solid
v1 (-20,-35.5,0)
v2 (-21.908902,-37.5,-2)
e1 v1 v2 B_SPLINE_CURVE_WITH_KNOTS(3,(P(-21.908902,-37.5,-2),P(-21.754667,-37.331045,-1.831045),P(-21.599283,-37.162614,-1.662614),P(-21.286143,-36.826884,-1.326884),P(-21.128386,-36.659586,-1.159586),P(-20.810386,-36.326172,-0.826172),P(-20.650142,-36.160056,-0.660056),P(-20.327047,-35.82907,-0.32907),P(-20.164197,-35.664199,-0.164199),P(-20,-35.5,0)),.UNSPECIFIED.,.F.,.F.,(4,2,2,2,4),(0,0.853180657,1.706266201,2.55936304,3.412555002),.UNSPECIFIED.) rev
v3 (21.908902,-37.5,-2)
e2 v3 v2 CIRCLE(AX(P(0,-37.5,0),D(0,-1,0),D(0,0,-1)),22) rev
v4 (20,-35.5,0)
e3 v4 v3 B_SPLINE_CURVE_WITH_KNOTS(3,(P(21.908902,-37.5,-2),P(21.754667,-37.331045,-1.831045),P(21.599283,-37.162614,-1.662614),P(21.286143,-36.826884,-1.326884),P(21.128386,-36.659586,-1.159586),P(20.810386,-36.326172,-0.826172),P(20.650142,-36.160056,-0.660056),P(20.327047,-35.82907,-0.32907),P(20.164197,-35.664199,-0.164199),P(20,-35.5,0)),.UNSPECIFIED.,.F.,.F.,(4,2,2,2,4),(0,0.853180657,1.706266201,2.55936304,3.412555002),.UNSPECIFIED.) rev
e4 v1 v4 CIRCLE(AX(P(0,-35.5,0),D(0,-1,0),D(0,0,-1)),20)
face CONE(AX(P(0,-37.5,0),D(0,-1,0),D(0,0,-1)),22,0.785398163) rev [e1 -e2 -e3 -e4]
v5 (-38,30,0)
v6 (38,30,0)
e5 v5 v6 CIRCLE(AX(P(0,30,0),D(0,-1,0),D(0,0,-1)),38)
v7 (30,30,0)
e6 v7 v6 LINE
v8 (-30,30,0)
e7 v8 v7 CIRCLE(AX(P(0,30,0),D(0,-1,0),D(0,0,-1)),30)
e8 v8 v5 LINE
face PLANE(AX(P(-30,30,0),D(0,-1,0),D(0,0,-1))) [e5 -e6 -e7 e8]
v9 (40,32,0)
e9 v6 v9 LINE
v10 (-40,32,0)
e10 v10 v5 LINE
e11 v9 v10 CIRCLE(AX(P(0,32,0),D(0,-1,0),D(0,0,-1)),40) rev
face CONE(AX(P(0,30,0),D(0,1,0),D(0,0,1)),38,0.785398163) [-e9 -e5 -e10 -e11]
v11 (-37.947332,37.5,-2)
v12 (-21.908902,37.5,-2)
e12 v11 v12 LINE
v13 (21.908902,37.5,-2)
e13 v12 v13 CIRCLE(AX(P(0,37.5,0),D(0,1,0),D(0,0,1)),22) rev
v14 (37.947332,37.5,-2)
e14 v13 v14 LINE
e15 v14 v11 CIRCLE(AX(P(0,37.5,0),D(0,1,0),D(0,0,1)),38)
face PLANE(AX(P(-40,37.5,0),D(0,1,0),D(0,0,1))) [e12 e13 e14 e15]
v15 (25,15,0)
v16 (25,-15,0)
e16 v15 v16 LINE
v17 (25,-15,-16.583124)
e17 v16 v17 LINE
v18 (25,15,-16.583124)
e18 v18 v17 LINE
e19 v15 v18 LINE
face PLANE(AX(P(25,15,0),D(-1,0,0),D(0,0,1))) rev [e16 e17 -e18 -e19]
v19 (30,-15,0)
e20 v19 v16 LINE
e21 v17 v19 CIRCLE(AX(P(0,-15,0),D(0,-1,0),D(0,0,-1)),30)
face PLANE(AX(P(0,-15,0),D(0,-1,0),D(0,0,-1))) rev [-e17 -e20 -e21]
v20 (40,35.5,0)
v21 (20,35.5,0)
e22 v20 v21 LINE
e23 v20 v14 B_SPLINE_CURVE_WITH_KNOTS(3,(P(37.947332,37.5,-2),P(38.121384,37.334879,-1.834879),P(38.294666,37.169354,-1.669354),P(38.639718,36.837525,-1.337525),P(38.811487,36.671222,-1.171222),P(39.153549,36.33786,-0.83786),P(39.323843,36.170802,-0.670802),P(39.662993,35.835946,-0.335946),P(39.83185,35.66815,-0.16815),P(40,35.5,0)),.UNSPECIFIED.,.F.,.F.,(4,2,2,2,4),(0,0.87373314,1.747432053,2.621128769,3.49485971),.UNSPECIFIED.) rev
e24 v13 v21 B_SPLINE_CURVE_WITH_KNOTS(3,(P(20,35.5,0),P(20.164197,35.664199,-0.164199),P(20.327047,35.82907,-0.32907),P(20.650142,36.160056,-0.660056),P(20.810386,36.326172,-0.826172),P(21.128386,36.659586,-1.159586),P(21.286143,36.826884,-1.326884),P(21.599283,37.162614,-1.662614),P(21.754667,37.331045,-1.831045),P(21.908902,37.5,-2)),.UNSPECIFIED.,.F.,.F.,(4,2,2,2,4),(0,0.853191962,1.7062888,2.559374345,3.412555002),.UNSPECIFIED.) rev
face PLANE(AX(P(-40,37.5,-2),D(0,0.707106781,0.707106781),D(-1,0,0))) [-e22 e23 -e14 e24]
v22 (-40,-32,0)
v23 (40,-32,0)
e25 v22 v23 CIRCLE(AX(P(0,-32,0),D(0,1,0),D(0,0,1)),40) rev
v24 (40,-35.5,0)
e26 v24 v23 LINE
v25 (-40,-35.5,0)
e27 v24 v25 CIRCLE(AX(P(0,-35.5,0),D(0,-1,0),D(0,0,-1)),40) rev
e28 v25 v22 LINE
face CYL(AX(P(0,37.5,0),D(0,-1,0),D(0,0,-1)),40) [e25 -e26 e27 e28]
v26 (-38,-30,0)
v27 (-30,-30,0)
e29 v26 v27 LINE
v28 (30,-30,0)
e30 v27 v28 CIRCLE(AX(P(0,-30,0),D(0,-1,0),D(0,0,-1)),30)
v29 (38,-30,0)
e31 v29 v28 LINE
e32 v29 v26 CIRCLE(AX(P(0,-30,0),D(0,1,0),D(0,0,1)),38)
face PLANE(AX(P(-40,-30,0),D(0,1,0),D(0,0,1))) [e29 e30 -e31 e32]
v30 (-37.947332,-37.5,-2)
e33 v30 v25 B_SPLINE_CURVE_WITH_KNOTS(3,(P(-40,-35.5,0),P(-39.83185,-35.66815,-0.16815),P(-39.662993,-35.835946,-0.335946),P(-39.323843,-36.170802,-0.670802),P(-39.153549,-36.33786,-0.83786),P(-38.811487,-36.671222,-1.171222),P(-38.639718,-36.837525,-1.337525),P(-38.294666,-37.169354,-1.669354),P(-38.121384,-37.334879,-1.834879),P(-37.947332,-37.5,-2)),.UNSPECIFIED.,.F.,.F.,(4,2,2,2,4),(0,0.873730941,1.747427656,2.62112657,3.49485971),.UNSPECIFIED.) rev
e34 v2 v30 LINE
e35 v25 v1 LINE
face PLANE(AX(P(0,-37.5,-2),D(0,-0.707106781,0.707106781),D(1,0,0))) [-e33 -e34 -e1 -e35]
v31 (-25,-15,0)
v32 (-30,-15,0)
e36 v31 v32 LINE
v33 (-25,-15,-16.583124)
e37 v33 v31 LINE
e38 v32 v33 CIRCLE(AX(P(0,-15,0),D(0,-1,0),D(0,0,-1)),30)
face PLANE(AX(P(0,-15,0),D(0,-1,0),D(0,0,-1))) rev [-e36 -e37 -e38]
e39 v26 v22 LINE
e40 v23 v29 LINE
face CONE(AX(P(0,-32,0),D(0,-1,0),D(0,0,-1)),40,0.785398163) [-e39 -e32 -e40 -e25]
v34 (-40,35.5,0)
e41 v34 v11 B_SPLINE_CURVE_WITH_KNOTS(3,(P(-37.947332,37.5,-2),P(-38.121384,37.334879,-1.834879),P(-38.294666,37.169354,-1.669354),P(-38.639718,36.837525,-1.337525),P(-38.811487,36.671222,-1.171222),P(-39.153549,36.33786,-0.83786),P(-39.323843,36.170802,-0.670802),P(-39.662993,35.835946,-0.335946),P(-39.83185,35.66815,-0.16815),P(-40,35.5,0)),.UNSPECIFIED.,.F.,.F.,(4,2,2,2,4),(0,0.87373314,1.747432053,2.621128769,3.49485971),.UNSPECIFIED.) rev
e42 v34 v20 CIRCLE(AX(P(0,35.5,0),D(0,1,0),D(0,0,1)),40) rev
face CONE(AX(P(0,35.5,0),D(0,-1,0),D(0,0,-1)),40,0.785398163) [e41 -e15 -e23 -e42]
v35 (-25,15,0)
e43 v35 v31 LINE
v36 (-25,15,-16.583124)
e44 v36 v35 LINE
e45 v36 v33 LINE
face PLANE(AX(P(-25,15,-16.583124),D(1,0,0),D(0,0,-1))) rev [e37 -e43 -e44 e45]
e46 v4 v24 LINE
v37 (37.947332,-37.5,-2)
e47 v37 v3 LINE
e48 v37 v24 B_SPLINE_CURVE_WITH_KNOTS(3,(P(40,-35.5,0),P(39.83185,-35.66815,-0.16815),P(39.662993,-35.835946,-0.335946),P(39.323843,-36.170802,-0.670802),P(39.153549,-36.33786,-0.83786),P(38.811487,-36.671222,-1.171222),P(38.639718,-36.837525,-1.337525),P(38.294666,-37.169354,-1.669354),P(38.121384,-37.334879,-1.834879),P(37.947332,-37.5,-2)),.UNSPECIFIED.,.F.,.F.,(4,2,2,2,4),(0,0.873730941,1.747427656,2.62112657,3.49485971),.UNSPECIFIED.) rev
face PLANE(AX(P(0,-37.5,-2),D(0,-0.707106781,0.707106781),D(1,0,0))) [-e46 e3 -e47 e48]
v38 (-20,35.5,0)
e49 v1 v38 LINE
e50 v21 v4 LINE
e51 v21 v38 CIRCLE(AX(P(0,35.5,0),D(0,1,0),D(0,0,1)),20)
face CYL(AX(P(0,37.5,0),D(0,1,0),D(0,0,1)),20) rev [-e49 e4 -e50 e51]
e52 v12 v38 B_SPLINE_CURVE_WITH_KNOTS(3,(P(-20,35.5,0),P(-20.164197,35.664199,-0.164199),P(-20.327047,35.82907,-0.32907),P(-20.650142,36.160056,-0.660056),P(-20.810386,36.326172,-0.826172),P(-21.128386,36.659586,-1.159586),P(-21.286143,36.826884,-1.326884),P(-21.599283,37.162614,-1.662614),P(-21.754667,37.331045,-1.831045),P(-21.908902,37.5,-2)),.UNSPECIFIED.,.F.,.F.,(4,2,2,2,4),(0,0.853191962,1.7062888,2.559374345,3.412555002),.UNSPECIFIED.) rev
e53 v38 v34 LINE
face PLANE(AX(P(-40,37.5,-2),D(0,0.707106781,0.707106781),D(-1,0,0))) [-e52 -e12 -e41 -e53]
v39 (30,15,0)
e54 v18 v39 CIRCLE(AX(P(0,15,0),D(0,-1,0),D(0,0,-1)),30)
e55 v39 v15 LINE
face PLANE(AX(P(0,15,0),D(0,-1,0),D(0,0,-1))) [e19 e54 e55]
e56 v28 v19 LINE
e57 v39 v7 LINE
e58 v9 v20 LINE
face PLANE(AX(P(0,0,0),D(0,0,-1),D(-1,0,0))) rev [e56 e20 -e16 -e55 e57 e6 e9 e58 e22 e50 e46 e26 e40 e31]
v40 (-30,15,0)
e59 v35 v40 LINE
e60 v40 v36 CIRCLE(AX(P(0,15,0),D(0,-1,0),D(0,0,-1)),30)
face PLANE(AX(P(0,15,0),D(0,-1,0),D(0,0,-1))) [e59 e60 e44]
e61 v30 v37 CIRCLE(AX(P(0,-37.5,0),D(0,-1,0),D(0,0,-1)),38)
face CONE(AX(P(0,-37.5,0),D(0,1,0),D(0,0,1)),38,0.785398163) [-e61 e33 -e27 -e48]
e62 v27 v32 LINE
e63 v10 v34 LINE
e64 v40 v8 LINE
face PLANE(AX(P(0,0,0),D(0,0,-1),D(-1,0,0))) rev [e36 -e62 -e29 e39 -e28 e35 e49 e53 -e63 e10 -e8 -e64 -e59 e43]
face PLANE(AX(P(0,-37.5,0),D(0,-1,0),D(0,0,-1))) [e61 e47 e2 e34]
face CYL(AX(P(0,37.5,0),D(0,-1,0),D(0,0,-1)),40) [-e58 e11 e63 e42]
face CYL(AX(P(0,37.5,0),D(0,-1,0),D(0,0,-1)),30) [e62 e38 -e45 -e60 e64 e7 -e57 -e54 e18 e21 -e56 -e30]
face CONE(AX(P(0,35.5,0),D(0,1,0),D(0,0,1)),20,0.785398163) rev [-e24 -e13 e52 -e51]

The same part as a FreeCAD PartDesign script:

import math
import FreeCAD as App
import Part
import Sketcher

V = App.Vector
Q = App.Units.Quantity


def edges_at(feature, points):
    """Names of the edges that pass closest to the given points."""
    edges = feature.Shape.Edges
    near = lambda p: min(range(len(edges)), key=lambda i: edges[i].distToShape(Part.Vertex(*p))[0])
    return sorted({f"Edge{near(p) + 1}" for p in points})


def add_polygon(sketch, points):
    """Adds a closed chain of lines whose ends are joined by coincident constraints."""
    first, n = sketch.GeometryCount, len(points)
    for a, b in zip(points, points[1:] + points[:1]):
        sketch.addGeometry(Part.LineSegment(App.Vector(*a, 0), App.Vector(*b, 0)), False)
    for i in range(n):
        sketch.addConstraint(Sketcher.Constraint("Coincident", first + i, 2, first + (i + 1) % n, 1))

doc = App.newDocument("Part")
body = doc.addObject("PartDesign::Body", "Body")

sketch1 = doc.addObject("Sketcher::SketchObject", "Sketch")
body.addObject(sketch1)
sketch1.AttachmentSupport = (doc.XY_Plane, [""])
sketch1.MapMode = "FlatFace"
add_polygon(sketch1, [(0, 38), (0, -38), (40, -38), (40, -30), (30, -30), (30, 30), (40, 30), (40, 38)])
sketch1.addConstraint([
    Sketcher.Constraint("Vertical", 0),
    Sketcher.Constraint("Horizontal", 1),
    Sketcher.Constraint("Vertical", 2),
    Sketcher.Constraint("Horizontal", 3),
    Sketcher.Constraint("Vertical", 4),
    Sketcher.Constraint("Horizontal", 5),
    Sketcher.Constraint("Vertical", 6),
    Sketcher.Constraint("Horizontal", 7),
    Sketcher.Constraint("Symmetric", 0, 2, 7, 2, -1, 1),
    Sketcher.Constraint("Symmetric", 2, 2, 5, 2, -1),
    Sketcher.Constraint("DistanceX", 1, 1, 1, 2, Q("40 mm")),
    Sketcher.Constraint("DistanceX", 3, 2, 3, 1, Q("10 mm")),
    Sketcher.Constraint("DistanceY", 0, 2, 0, 1, Q("75 mm")),
    Sketcher.Constraint("DistanceY", 4, 1, 4, 2, Q("60 mm")),
])
revolution = doc.addObject("PartDesign::Revolution", "Revolution")
body.addObject(revolution)
revolution.Profile = sketch1
revolution.ReferenceAxis = (sketch1, ["V_Axis"])
revolution.Angle = 180

sketch2 = doc.addObject("Sketcher::SketchObject", "Sketch001")
body.addObject(sketch2)
sketch2.AttachmentSupport = (doc.XZ_Plane, [""])
sketch2.MapMode = "FlatFace"
sketch2.AttachmentOffset = App.Placement(V(0, 0, -15), App.Rotation())
sketch2.addGeometry([
    Part.LineSegment(V(25, 0, 0), V(25, -17, 0)),
    Part.ArcOfCircle(Part.Circle(V(0, 0, 0), V(0, 0, 1), 30), math.radians(-34), math.radians(0)),
    Part.LineSegment(V(30, 0, 0), V(25, 0, 0)),
], False)
sketch2.addConstraint([
    Sketcher.Constraint("Coincident", 0, 2, 1, 1),
    Sketcher.Constraint("Coincident", 1, 2, 2, 1),
    Sketcher.Constraint("Coincident", 2, 2, 0, 1),
    Sketcher.Constraint("Vertical", 0),
    Sketcher.Constraint("Horizontal", 2),
    Sketcher.Constraint("Coincident", 1, 3, -1, 1),
    Sketcher.Constraint("PointOnObject", 1, 2, -1),
    Sketcher.Constraint("Radius", 1, Q("30 mm")),
    Sketcher.Constraint("DistanceX", 2, 2, 2, 1, Q("5 mm")),
])
pocket1 = doc.addObject("PartDesign::Pocket", "Pocket")
body.addObject(pocket1)
pocket1.Profile = sketch2
pocket1.Length = 30
pocket1.Reversed = True

sketch3 = doc.addObject("Sketcher::SketchObject", "Sketch002")
body.addObject(sketch3)
sketch3.AttachmentSupport = (doc.XZ_Plane, [""])
sketch3.MapMode = "FlatFace"
sketch3.AttachmentOffset = App.Placement(V(0, 0, -15), App.Rotation())
sketch3.addGeometry([
    Part.LineSegment(V(-25, -17, 0), V(-25, 0, 0)),
    Part.LineSegment(V(-25, 0, 0), V(-30, 0, 0)),
    Part.ArcOfCircle(Part.Circle(V(0, 0, 0), V(0, 0, 1), 30), math.radians(-180), math.radians(-146)),
], False)
sketch3.addConstraint([
    Sketcher.Constraint("Coincident", 0, 2, 1, 1),
    Sketcher.Constraint("Coincident", 1, 2, 2, 1),
    Sketcher.Constraint("Coincident", 2, 2, 0, 1),
    Sketcher.Constraint("Vertical", 0),
    Sketcher.Constraint("Horizontal", 1),
    Sketcher.Constraint("Coincident", 2, 3, -1, 1),
    Sketcher.Constraint("PointOnObject", 0, 2, -1),
    Sketcher.Constraint("Radius", 2, Q("30 mm")),
    Sketcher.Constraint("DistanceX", 1, 2, 1, 1, Q("5 mm")),
])
pocket2 = doc.addObject("PartDesign::Pocket", "Pocket001")
body.addObject(pocket2)
pocket2.Profile = sketch3
pocket2.Length = 30
pocket2.Reversed = True

sketch4 = doc.addObject("Sketcher::SketchObject", "Sketch003")
body.addObject(sketch4)
sketch4.AttachmentSupport = (doc.XZ_Plane, [""])
sketch4.MapMode = "FlatFace"
sketch4.AttachmentOffset = App.Placement(V(0, 0, -37.5), App.Rotation())
sketch4.addGeometry(Part.Circle(V(0, 0, 0), V(0, 0, 1), 20), False)
sketch4.addConstraint([
    Sketcher.Constraint("Coincident", 0, 3, -1, 1),
    Sketcher.Constraint("Diameter", 0, Q("40 mm")),
])
doc.recompute()
hole = doc.addObject("PartDesign::Hole", "Hole")
body.addObject(hole)
hole.Profile = sketch4
hole.ThreadType = "None"
hole.Diameter = 40
hole.DepthType = "ThroughAll"
hole.Reversed = True
doc.recompute()

chamfer = doc.addObject("PartDesign::Chamfer", "Chamfer")
body.addObject(chamfer)
chamfer.Base = (hole, edges_at(hole, [
    (30, -37.5, 0),
    (0, 37.5, -40),
    (0, 30, -40),
    (0, -30, -40),
    (0, -37.5, -40),
    (-30, 37.5, 0),
    (-30, -37.5, 0),
    (30, 37.5, 0),
    (0, 37.5, -20),
    (0, -37.5, -20),
]))
chamfer.Size = 2

doc.recompute()
